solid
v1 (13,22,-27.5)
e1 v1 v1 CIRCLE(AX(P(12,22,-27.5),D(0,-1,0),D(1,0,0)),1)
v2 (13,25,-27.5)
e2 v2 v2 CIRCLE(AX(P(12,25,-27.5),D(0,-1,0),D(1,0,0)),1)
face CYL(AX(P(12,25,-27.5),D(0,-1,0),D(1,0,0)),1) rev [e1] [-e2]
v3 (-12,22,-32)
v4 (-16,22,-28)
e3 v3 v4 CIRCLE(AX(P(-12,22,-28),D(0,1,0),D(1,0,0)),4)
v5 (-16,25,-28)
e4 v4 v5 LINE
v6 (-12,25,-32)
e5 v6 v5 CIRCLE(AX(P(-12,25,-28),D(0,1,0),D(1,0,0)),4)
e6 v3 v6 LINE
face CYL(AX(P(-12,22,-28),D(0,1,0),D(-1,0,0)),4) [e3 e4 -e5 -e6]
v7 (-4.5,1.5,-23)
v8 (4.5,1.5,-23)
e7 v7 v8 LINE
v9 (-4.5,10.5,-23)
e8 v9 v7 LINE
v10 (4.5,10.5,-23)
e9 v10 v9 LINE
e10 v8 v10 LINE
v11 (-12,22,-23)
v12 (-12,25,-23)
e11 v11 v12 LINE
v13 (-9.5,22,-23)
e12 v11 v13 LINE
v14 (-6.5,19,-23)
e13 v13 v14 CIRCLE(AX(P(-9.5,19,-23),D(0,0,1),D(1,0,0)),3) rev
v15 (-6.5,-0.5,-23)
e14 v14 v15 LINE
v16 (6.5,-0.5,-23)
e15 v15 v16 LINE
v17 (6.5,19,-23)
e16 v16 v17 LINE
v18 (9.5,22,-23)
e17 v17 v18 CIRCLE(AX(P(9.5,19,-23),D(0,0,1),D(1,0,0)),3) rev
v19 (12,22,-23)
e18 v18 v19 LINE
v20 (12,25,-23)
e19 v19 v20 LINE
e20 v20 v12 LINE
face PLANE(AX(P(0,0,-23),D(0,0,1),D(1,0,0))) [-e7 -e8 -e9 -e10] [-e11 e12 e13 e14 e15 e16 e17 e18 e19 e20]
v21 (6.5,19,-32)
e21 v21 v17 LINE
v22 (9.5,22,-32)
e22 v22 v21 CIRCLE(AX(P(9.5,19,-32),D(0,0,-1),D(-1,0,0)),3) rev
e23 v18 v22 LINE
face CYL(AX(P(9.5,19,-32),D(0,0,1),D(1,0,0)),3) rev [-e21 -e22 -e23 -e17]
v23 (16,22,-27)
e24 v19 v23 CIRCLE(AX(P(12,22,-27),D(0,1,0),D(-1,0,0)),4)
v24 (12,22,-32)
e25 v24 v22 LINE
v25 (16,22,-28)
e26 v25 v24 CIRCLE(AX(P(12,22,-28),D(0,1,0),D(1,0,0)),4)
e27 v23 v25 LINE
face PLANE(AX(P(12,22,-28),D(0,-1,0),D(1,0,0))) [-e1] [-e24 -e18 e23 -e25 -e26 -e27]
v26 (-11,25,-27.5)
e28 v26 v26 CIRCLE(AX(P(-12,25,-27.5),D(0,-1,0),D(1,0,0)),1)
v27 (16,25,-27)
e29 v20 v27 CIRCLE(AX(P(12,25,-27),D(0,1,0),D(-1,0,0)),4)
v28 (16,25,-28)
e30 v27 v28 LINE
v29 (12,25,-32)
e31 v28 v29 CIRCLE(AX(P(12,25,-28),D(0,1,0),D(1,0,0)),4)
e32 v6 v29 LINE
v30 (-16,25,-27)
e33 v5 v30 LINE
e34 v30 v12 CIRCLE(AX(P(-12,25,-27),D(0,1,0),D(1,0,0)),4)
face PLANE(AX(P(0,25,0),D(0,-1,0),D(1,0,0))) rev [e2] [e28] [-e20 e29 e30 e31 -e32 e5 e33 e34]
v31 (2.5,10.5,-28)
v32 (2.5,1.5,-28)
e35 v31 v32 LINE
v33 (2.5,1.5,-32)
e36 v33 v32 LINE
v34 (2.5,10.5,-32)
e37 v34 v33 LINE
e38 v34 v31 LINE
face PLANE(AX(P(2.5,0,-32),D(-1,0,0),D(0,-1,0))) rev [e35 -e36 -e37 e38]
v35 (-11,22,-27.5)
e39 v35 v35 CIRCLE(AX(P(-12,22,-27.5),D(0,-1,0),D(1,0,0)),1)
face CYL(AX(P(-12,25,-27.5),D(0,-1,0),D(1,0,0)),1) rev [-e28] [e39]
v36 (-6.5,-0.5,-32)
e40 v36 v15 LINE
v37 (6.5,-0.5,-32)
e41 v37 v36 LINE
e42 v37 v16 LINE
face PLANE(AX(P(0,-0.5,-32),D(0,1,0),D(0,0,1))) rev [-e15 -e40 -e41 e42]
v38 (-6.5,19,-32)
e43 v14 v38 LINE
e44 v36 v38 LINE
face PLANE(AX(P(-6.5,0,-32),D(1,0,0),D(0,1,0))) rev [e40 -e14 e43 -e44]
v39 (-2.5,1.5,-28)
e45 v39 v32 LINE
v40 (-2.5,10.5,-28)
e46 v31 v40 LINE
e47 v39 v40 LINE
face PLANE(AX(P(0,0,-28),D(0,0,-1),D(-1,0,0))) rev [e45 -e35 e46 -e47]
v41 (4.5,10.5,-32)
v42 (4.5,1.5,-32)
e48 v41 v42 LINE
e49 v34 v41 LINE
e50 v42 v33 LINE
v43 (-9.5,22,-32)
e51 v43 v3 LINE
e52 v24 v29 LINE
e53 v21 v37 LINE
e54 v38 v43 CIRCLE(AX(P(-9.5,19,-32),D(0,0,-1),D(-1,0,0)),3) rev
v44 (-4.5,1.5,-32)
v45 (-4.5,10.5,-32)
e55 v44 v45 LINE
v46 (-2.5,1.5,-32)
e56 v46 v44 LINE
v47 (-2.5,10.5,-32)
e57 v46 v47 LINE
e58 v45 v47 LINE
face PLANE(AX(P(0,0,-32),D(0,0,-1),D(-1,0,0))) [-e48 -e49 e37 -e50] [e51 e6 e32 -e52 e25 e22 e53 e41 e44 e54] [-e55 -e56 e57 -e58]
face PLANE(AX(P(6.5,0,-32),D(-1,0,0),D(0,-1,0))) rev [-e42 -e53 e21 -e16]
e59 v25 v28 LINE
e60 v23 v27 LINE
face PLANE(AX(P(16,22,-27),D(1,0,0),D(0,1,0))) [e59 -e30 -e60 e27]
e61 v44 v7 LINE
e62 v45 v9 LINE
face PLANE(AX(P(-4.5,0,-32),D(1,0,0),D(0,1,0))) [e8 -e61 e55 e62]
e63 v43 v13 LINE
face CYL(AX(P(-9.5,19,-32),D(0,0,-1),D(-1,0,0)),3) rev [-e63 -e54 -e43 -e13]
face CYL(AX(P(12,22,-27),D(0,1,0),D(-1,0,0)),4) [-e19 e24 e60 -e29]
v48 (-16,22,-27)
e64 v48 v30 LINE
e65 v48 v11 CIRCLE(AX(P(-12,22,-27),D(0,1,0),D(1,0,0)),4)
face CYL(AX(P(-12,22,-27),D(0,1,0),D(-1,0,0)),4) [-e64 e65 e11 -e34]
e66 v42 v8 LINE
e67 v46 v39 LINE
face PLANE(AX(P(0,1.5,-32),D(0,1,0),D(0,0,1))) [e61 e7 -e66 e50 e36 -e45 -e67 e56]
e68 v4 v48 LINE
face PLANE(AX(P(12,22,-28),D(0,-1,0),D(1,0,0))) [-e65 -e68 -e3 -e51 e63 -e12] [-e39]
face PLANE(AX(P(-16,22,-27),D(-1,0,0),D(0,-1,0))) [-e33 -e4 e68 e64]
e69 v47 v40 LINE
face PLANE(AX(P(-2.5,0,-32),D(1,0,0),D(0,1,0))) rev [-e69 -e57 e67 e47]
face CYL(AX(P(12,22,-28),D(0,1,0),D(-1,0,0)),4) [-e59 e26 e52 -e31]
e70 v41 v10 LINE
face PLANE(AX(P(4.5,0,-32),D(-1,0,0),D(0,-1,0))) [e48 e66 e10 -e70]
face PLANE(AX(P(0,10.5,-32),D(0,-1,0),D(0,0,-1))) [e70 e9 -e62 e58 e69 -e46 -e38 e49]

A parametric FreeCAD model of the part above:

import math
import FreeCAD as App
import Part
import Sketcher

V = App.Vector
Q = App.Units.Quantity


def edges_at(feature, points):
    """Names of the edges that pass closest to the given points."""
    edges = feature.Shape.Edges
    near = lambda p: min(range(len(edges)), key=lambda i: edges[i].distToShape(Part.Vertex(*p))[0])
    return sorted({f"Edge{near(p) + 1}" for p in points})


def add_polygon(sketch, points):
    """Adds a closed chain of lines whose ends are joined by coincident constraints."""
    first, n = sketch.GeometryCount, len(points)
    for a, b in zip(points, points[1:] + points[:1]):
        sketch.addGeometry(Part.LineSegment(App.Vector(*a, 0), App.Vector(*b, 0)), False)
    for i in range(n):
        sketch.addConstraint(Sketcher.Constraint("Coincident", first + i, 2, first + (i + 1) % n, 1))

doc = App.newDocument("Part")
body = doc.addObject("PartDesign::Body", "Body")

sketch1 = doc.addObject("Sketcher::SketchObject", "Sketch")
body.addObject(sketch1)
sketch1.AttachmentSupport = (doc.XY_Plane, [""])
sketch1.MapMode = "FlatFace"
sketch1.AttachmentOffset = App.Placement(V(0, 0, -28), App.Rotation())
add_polygon(sketch1, [(6.5, 12.5), (6.5, -0.5), (-6.5, -0.5), (-6.5, 12.5)])
add_polygon(sketch1, [(4.5, 1.5), (4.5, 10.5), (2.5, 10.5), (2.5, 1.5)])
add_polygon(sketch1, [(-2.5, 10.5), (-4.5, 10.5), (-4.5, 1.5), (-2.5, 1.5)])
sketch1.addConstraint([
    Sketcher.Constraint("Vertical", 0),
    Sketcher.Constraint("Horizontal", 1),
    Sketcher.Constraint("Vertical", 2),
    Sketcher.Constraint("Horizontal", 3),
    Sketcher.Constraint("Vertical", 4),
    Sketcher.Constraint("Horizontal", 5),
    Sketcher.Constraint("Vertical", 6),
    Sketcher.Constraint("Horizontal", 7),
    Sketcher.Constraint("Horizontal", 8),
    Sketcher.Constraint("Vertical", 9),
    Sketcher.Constraint("Horizontal", 10),
    Sketcher.Constraint("Vertical", 11),
    Sketcher.Constraint("Symmetric", 4, 2, 8, 2, -2),
    Sketcher.Constraint("Symmetric", 6, 2, 10, 2, -2),
    Sketcher.Constraint("Equal", 3, 0),
    Sketcher.Constraint("DistanceX", 1, 2, 1, 1, Q("13 mm")),
    Sketcher.Constraint("DistanceX", 5, 2, 5, 1, Q("2 mm")),
    Sketcher.Constraint("DistanceY", 4, 1, 4, 2, Q("9 mm")),
    Sketcher.Constraint("DistanceX", 4, 2, 3, 2, Q("2 mm")),
    Sketcher.Constraint("DistanceY", 4, 2, 3, 2, Q("2 mm")),
    Sketcher.Constraint("DistanceX", 2, 2, 8, 2, Q("2 mm")),
    Sketcher.Constraint("DistanceY", 0, 2, -1, 1, Q("0.5 mm")),
])
pad1 = doc.addObject("PartDesign::Pad", "Pad")
body.addObject(pad1)
pad1.Profile = sketch1
pad1.Length = 4
pad1.Reversed = True

sketch2 = doc.addObject("Sketcher::SketchObject", "Sketch001")
body.addObject(sketch2)
sketch2.AttachmentSupport = (doc.XY_Plane, [""])
sketch2.MapMode = "FlatFace"
sketch2.AttachmentOffset = App.Placement(V(0, 0, -28), App.Rotation())
add_polygon(sketch2, [(-6.5, 12.5), (-6.5, -0.5), (6.5, -0.5), (6.5, 12.5)])
add_polygon(sketch2, [(4.5, 1.5), (-4.5, 1.5), (-4.5, 10.5), (4.5, 10.5)])
sketch2.addConstraint([
    Sketcher.Constraint("Vertical", 0),
    Sketcher.Constraint("Horizontal", 1),
    Sketcher.Constraint("Vertical", 2),
    Sketcher.Constraint("Horizontal", 3),
    Sketcher.Constraint("Horizontal", 4),
    Sketcher.Constraint("Vertical", 5),
    Sketcher.Constraint("Horizontal", 6),
    Sketcher.Constraint("Vertical", 7),
    Sketcher.Constraint("Equal", 3, 0),
    Sketcher.Constraint("Equal", 6, 5),
    Sketcher.Constraint("DistanceX", 1, 1, 1, 2, Q("13 mm")),
    Sketcher.Constraint("DistanceX", 4, 2, 4, 1, Q("9 mm")),
    Sketcher.Constraint("DistanceX", 0, 2, 4, 2, Q("2 mm")),
    Sketcher.Constraint("DistanceY", 0, 2, 4, 2, Q("2 mm")),
    Sketcher.Constraint("DistanceX", 0, 2, -1, 1, Q("6.5 mm")),
    Sketcher.Constraint("DistanceY", 0, 2, -1, 1, Q("0.5 mm")),
])
pad2 = doc.addObject("PartDesign::Pad", "Pad001")
body.addObject(pad2)
pad2.Profile = sketch2
pad2.Length = 5

sketch3 = doc.addObject("Sketcher::SketchObject", "Sketch002")
body.addObject(sketch3)
sketch3.AttachmentSupport = (doc.XZ_Plane, [""])
sketch3.MapMode = "FlatFace"
sketch3.AttachmentOffset = App.Placement(V(0, 0, -12.5), App.Rotation())
add_polygon(sketch3, [(-6.5, -32), (-6.5, -23), (6.5, -23), (6.5, -32)])
sketch3.addConstraint([
    Sketcher.Constraint("Vertical", 0),
    Sketcher.Constraint("Horizontal", 1),
    Sketcher.Constraint("Vertical", 2),
    Sketcher.Constraint("Horizontal", 3),
    Sketcher.Constraint("DistanceX", 1, 1, 1, 2, Q("13 mm")),
    Sketcher.Constraint("DistanceY", 0, 1, 0, 2, Q("9 mm")),
    Sketcher.Constraint("DistanceY", 0, 2, -1, 1, Q("23 mm")),
    Sketcher.Constraint("DistanceX", 0, 2, -1, 1, Q("6.5 mm")),
])
pad3 = doc.addObject("PartDesign::Pad", "Pad002")
body.addObject(pad3)
pad3.Profile = sketch3
pad3.Length = 12.5
pad3.Reversed = True

sketch4 = doc.addObject("Sketcher::SketchObject", "Sketch003")
body.addObject(sketch4)
sketch4.AttachmentSupport = (doc.XZ_Plane, [""])
sketch4.MapMode = "FlatFace"
sketch4.AttachmentOffset = App.Placement(V(0, 0, -25), App.Rotation())
sketch4.addGeometry([
    Part.LineSegment(V(-12, -23, 0), V(12, -23, 0)),
    Part.ArcOfCircle(Part.Circle(V(12, -27, 0), V(0, 0, 1), 4), math.radians(0), math.radians(90)),
    Part.LineSegment(V(16, -27, 0), V(16, -28, 0)),
    Part.ArcOfCircle(Part.Circle(V(12, -28, 0), V(0, 0, 1), 4), math.radians(-90), math.radians(0)),
    Part.LineSegment(V(12, -32, 0), V(-12, -32, 0)),
    Part.ArcOfCircle(Part.Circle(V(-12, -28, 0), V(0, 0, 1), 4), math.radians(180), math.radians(270)),
    Part.LineSegment(V(-16, -28, 0), V(-16, -27, 0)),
    Part.ArcOfCircle(Part.Circle(V(-12, -27, 0), V(0, 0, 1), 4), math.radians(90), math.radians(180)),
], False)
sketch4.addConstraint([
    Sketcher.Constraint("Tangent", 0, 2, 1, 2),
    Sketcher.Constraint("Tangent", 1, 1, 2, 1),
    Sketcher.Constraint("Tangent", 2, 2, 3, 2),
    Sketcher.Constraint("Tangent", 3, 1, 4, 1),
    Sketcher.Constraint("Tangent", 4, 2, 5, 2),
    Sketcher.Constraint("Tangent", 5, 1, 6, 1),
    Sketcher.Constraint("Tangent", 6, 2, 7, 2),
    Sketcher.Constraint("Tangent", 7, 1, 0, 1),
    Sketcher.Constraint("Horizontal", 0),
    Sketcher.Constraint("Vertical", 2),
    Sketcher.Constraint("Horizontal", 4),
    Sketcher.Constraint("Vertical", 6),
    Sketcher.Constraint("Equal", 1, 3),
    Sketcher.Constraint("Equal", 3, 5),
    Sketcher.Constraint("Equal", 5, 7),
    Sketcher.Constraint("Radius", 1, Q("4 mm")),
    Sketcher.Constraint("DistanceX", 0, 1, 0, 2, Q("24 mm")),
    Sketcher.Constraint("DistanceY", 2, 2, 2, 1, Q("1 mm")),
    Sketcher.Constraint("DistanceX", -1, 1, 1, 3, Q("12 mm")),
    Sketcher.Constraint("DistanceY", 1, 3, -1, 1, Q("27 mm")),
])
pad4 = doc.addObject("PartDesign::Pad", "Pad003")
body.addObject(pad4)
pad4.Profile = sketch4
pad4.Length = 3
doc.recompute()

fillet = doc.addObject("PartDesign::Fillet", "Fillet")
body.addObject(fillet)
fillet.Base = (pad4, edges_at(pad4, [(-6.5, 22, -27.5), (6.5, 22, -27.5)]))
fillet.Radius = 3

sketch5 = doc.addObject("Sketcher::SketchObject", "Sketch004")
body.addObject(sketch5)
sketch5.AttachmentSupport = (doc.XZ_Plane, [""])
sketch5.MapMode = "FlatFace"
sketch5.AttachmentOffset = App.Placement(V(0, 0, -22), App.Rotation())
sketch5.addGeometry([
    Part.Circle(V(-12, -27.5, 0), V(0, 0, 1), 1),
    Part.Circle(V(12, -27.5, 0), V(0, 0, 1), 1),
], False)
sketch5.addConstraint([
    Sketcher.Constraint("Equal", 0, 1),
    Sketcher.Constraint("Symmetric", 0, 3, 1, 3, -2),
    Sketcher.Constraint("Diameter", 0, Q("2 mm")),
    Sketcher.Constraint("DistanceX", 0, 3, -1, 1, Q("12 mm")),
    Sketcher.Constraint("DistanceY", 0, 3, -1, 1, Q("27.5 mm")),
])
pocket1 = doc.addObject("PartDesign::Pocket", "Pocket")
body.addObject(pocket1)
pocket1.Profile = sketch5
pocket1.Type = "ThroughAll"

doc.recompute()
